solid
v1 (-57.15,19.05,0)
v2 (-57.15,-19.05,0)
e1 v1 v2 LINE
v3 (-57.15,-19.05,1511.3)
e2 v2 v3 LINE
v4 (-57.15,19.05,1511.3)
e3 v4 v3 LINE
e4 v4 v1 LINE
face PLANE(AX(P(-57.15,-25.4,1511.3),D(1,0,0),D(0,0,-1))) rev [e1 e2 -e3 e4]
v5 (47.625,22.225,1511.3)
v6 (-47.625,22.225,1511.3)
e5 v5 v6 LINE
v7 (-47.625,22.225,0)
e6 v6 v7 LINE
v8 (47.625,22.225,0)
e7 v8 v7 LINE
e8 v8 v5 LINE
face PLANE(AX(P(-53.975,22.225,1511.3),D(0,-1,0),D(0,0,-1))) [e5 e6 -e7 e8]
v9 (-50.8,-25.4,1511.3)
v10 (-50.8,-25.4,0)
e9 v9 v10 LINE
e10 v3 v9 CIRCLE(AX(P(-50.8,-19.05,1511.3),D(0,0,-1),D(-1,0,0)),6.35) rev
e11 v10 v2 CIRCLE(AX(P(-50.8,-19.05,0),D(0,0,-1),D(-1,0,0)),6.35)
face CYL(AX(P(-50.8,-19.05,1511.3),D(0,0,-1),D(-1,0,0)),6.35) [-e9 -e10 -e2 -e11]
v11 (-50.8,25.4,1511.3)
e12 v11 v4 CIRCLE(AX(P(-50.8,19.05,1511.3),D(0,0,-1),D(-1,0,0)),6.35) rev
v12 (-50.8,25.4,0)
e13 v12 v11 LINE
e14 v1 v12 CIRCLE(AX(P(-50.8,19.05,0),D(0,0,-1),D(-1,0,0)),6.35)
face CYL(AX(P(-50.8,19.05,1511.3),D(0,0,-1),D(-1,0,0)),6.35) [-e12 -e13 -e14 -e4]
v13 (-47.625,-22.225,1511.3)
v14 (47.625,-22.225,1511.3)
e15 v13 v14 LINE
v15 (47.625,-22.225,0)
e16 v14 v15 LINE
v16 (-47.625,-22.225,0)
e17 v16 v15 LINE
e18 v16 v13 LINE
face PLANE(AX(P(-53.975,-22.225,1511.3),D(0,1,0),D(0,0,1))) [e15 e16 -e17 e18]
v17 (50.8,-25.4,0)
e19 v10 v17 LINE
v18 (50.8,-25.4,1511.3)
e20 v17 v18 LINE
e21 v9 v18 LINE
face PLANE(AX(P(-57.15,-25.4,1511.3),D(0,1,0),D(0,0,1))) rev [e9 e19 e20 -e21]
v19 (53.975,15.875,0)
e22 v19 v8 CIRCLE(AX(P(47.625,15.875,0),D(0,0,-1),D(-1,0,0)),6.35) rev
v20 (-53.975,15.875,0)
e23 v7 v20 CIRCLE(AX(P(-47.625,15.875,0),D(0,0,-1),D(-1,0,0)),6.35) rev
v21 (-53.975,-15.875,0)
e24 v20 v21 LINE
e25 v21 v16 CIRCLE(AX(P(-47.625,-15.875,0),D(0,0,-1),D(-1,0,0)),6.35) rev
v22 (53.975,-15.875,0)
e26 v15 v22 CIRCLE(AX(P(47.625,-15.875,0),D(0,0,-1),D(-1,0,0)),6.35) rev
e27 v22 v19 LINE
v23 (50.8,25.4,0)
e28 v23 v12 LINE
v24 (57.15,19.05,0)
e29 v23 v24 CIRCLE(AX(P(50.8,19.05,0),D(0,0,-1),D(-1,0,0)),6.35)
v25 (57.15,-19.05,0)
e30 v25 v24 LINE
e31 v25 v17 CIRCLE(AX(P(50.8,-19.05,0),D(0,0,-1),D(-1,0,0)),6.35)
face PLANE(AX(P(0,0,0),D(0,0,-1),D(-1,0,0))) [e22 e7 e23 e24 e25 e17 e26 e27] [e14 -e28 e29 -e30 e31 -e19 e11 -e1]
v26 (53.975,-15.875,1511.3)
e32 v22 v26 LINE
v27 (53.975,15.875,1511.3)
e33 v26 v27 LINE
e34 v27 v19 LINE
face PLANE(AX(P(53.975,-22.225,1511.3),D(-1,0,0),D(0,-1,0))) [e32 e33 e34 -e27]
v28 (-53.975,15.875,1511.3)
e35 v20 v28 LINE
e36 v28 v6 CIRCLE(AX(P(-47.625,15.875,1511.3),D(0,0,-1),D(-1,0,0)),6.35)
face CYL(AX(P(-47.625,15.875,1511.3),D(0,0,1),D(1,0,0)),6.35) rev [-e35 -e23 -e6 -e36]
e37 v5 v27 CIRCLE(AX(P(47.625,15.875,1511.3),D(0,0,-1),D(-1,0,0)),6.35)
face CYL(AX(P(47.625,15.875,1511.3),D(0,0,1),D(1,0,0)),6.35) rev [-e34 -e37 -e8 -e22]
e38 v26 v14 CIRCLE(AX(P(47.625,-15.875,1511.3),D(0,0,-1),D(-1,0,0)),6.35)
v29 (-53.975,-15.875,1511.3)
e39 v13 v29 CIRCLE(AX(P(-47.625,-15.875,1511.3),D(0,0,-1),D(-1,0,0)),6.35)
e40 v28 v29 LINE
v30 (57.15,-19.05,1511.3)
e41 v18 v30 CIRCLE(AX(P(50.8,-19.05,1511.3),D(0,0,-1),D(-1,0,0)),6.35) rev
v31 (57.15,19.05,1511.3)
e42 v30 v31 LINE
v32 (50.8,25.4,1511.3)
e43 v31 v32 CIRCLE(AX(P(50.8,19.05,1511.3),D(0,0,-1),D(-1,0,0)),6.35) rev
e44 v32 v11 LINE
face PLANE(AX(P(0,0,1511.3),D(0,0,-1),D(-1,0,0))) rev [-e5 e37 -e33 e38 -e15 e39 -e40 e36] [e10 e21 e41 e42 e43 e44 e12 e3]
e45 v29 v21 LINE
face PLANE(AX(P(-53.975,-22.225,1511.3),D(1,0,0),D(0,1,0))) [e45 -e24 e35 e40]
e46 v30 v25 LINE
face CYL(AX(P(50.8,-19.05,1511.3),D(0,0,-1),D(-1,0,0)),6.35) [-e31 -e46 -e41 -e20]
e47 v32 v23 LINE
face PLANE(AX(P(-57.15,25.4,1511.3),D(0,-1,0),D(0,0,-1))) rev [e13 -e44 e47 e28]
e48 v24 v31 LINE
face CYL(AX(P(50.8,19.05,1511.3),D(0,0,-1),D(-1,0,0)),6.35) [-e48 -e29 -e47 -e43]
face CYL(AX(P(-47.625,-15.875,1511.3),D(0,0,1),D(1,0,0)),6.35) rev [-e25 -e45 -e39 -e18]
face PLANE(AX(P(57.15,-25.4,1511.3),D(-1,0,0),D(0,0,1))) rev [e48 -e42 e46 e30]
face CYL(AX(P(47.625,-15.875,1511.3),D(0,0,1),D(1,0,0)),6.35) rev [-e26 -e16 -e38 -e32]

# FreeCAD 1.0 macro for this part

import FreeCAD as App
import Part
import Sketcher

V = App.Vector
Q = App.Units.Quantity


def edges_at(feature, points):
    """Names of the edges that pass closest to the given points."""
    edges = feature.Shape.Edges
    near = lambda p: min(range(len(edges)), key=lambda i: edges[i].distToShape(Part.Vertex(*p))[0])
    return sorted({f"Edge{near(p) + 1}" for p in points})

doc = App.newDocument("Part")
body = doc.addObject("PartDesign::Body", "Body")

sketch1 = body.newObject("Sketcher::SketchObject", "Sketch")
sketch1.AttachmentSupport = (doc.getObject("XY_Plane"), [""])
sketch1.MapMode = "FlatFace"
sketch1.addGeometry([
    Part.LineSegment(V(-57.15, 25.4, 0), V(-57.15, -25.4, 0)),
    Part.LineSegment(V(-57.15, -25.4, 0), V(57.15, -25.4, 0)),
    Part.LineSegment(V(57.15, -25.4, 0), V(57.15, 25.4, 0)),
    Part.LineSegment(V(57.15, 25.4, 0), V(-57.15, 25.4, 0)),
    Part.LineSegment(V(53.975, -22.225, 0), V(-53.975, -22.225, 0)),
    Part.LineSegment(V(-53.975, -22.225, 0), V(-53.975, 22.225, 0)),
    Part.LineSegment(V(-53.975, 22.225, 0), V(53.975, 22.225, 0)),
    Part.LineSegment(V(53.975, 22.225, 0), V(53.975, -22.225, 0)),
], False)
sketch1.addConstraint([
    Sketcher.Constraint("Coincident", 0, 2, 1, 1),
    Sketcher.Constraint("Coincident", 1, 2, 2, 1),
    Sketcher.Constraint("Coincident", 2, 2, 3, 1),
    Sketcher.Constraint("Coincident", 3, 2, 0, 1),
    Sketcher.Constraint("Coincident", 4, 2, 5, 1),
    Sketcher.Constraint("Coincident", 5, 2, 6, 1),
    Sketcher.Constraint("Coincident", 6, 2, 7, 1),
    Sketcher.Constraint("Coincident", 7, 2, 4, 1),
    Sketcher.Constraint("Vertical", 0),
    Sketcher.Constraint("Horizontal", 1),
    Sketcher.Constraint("Vertical", 2),
    Sketcher.Constraint("Horizontal", 3),
    Sketcher.Constraint("Horizontal", 4),
    Sketcher.Constraint("Vertical", 5),
    Sketcher.Constraint("Horizontal", 6),
    Sketcher.Constraint("Vertical", 7),
    Sketcher.Constraint("Symmetric", 0, 2, 2, 2, -1, 1),
    Sketcher.Constraint("Symmetric", 4, 2, 6, 2, -1, 1),
    Sketcher.Constraint("DistanceY", 0, 2, 0, 1, Q("2 in")),
    Sketcher.Constraint("DistanceX", 1, 1, 1, 2, Q("4.5 in")),
    Sketcher.Constraint("DistanceX", 4, 2, 4, 1, Q("4.25 in")),
    Sketcher.Constraint("DistanceY", 5, 1, 5, 2, Q("1.75 in")),
])
pad1 = body.newObject("PartDesign::Pad", "Pad")
pad1.Profile = sketch1
pad1.Length = Q("59.5 in")
doc.recompute()

fillet = body.newObject("PartDesign::Fillet", "Fillet")
fillet.Base = (pad1, edges_at(pad1, [
    (53.975, -22.225, 755.65),
    (53.975, 22.225, 755.65),
    (-53.975, 22.225, 755.65),
    (-53.975, -22.225, 755.65),
    (57.15, -25.4, 755.65),
    (-57.15, -25.4, 755.65),
    (-57.15, 25.4, 755.65),
    (57.15, 25.4, 755.65),
]))
fillet.Radius = Q("0.25 in")

doc.recompute()
